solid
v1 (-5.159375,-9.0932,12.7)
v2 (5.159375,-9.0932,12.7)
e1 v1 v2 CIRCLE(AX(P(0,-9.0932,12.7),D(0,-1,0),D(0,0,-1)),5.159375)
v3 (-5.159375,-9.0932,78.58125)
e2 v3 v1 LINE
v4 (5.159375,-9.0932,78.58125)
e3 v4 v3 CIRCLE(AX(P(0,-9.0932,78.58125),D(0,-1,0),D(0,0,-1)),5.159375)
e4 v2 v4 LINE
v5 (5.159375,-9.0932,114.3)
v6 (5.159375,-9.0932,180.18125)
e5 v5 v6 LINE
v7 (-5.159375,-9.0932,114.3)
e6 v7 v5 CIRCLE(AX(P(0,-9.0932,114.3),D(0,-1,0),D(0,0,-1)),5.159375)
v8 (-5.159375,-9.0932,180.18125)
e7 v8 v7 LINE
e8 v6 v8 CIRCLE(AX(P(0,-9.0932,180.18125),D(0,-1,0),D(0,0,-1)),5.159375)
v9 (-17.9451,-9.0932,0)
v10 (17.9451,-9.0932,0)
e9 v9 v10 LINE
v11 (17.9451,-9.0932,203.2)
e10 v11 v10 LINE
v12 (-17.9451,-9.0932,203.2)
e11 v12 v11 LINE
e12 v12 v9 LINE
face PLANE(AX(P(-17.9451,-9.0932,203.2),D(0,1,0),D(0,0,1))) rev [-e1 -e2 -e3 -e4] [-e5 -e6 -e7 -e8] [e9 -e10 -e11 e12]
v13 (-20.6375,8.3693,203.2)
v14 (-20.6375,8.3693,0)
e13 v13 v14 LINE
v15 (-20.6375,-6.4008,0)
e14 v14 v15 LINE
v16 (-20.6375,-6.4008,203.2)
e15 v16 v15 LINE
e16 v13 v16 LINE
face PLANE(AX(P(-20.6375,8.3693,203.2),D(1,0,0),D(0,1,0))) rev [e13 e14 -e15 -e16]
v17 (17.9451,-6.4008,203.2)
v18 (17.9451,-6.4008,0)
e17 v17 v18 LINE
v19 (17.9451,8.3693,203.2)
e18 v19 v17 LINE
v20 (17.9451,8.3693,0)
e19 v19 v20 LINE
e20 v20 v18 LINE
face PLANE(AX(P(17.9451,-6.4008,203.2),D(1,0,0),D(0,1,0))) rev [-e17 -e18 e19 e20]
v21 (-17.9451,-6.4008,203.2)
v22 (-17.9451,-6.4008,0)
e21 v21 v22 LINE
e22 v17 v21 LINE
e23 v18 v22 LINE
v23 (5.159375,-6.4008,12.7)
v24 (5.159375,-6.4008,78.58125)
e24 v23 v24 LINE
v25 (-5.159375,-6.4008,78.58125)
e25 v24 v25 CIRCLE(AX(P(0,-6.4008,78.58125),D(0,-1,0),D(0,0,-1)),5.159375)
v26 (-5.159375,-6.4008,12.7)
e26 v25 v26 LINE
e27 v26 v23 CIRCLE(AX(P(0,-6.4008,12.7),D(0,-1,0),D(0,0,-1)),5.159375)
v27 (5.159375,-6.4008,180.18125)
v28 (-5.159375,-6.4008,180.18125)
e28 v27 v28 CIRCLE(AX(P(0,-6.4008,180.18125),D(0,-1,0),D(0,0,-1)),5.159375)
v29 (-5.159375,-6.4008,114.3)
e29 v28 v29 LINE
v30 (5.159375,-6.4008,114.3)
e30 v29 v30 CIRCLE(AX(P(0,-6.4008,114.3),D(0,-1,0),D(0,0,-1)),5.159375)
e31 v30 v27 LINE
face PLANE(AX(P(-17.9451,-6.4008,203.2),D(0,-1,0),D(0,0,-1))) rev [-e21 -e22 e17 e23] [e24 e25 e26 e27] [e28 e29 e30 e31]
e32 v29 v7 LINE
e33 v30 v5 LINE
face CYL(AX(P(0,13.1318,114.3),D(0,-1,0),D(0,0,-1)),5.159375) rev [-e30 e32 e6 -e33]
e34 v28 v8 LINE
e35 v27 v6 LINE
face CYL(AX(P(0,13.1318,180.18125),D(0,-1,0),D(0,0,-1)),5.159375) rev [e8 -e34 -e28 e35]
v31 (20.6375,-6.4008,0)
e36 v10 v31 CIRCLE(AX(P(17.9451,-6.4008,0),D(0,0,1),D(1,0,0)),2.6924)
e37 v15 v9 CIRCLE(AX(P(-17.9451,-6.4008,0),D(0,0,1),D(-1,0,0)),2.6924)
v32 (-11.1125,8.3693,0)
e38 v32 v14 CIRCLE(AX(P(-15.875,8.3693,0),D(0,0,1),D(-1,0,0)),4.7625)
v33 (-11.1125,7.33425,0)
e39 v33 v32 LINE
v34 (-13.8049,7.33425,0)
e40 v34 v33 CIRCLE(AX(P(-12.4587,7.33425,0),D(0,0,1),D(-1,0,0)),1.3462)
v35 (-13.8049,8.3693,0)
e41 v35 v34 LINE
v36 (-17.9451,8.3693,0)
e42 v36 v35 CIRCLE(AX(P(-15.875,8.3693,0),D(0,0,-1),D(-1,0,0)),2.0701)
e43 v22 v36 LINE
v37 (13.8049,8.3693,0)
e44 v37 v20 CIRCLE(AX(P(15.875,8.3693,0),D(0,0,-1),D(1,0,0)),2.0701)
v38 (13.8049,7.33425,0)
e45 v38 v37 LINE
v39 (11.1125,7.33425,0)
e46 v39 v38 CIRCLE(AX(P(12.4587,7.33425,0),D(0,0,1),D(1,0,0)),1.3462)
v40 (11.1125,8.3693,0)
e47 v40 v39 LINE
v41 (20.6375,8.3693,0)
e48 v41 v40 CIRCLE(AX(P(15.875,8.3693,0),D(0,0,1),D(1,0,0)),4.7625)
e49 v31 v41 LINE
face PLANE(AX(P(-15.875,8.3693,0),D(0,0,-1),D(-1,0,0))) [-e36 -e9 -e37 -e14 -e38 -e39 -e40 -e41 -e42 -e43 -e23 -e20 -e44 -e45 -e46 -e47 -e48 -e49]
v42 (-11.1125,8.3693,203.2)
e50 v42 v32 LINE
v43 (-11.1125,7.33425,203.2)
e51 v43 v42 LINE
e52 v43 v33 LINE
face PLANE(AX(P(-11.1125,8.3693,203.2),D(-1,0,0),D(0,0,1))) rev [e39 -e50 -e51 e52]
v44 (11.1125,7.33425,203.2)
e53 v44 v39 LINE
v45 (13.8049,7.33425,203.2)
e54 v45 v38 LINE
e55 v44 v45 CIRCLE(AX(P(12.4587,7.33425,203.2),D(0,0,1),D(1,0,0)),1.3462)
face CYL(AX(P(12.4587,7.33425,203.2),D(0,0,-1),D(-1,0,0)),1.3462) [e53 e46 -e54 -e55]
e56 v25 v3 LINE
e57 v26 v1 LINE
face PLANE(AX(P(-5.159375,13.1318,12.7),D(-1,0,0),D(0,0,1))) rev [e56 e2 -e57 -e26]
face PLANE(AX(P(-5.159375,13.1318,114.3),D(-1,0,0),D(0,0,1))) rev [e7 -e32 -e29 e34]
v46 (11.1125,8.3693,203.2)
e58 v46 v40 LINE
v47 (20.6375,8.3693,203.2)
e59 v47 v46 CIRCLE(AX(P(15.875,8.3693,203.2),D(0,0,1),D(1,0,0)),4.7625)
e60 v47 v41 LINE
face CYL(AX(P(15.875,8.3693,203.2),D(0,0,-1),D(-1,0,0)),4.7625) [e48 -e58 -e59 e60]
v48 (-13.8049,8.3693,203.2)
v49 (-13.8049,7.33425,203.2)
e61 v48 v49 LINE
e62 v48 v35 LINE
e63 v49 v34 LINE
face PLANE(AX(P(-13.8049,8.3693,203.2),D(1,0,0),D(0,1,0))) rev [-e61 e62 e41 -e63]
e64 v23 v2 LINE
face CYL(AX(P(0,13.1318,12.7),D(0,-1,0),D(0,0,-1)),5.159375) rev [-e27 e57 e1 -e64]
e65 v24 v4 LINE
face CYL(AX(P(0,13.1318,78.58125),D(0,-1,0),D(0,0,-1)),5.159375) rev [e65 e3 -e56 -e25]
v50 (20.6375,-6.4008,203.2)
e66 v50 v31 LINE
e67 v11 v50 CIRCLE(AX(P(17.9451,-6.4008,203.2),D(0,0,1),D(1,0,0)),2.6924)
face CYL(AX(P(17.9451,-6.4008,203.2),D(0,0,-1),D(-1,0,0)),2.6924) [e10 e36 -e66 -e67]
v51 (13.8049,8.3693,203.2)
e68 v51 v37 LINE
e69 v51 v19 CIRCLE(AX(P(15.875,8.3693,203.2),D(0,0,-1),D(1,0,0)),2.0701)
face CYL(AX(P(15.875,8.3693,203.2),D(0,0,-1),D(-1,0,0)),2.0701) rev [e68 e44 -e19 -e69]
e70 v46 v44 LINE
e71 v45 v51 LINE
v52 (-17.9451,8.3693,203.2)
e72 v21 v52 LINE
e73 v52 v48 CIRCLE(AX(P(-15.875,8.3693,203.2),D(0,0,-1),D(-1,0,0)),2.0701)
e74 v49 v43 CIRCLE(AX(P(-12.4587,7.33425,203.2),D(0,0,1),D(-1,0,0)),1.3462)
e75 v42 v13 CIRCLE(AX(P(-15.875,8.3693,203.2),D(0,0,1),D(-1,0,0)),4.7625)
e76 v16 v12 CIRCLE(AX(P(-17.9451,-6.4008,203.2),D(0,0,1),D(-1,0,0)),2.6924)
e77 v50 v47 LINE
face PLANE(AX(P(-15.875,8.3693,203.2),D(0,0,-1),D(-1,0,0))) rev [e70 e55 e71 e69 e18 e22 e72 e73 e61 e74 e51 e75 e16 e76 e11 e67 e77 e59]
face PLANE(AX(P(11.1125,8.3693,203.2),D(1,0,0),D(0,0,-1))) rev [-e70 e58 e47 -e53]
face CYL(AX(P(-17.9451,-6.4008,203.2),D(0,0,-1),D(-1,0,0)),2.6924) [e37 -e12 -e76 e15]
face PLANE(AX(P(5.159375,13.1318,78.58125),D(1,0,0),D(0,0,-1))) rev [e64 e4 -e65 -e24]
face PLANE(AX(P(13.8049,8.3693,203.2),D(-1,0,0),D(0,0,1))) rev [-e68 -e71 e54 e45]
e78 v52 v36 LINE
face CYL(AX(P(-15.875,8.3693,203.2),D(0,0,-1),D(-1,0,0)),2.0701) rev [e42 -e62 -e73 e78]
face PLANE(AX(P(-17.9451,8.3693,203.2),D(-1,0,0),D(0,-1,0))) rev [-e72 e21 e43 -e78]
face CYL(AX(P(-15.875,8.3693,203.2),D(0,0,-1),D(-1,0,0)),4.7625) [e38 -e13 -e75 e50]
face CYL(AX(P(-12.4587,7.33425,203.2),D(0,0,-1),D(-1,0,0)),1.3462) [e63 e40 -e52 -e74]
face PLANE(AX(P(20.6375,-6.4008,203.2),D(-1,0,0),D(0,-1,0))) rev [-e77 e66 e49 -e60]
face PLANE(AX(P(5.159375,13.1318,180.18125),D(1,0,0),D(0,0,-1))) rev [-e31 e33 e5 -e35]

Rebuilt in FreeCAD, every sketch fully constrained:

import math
import FreeCAD as App
import Part
import Sketcher

V = App.Vector
Q = App.Units.Quantity

doc = App.newDocument("Part")
body = doc.addObject("PartDesign::Body", "Body")

sketch1 = doc.addObject("Sketcher::SketchObject", "Sketch")
body.addObject(sketch1)
sketch1.AttachmentSupport = (doc.XY_Plane, [""])
sketch1.MapMode = "FlatFace"
sketch1.addGeometry([
    Part.LineSegment(V(-20.6, 8.4, 0), V(-20.6, -6.4, 0)),
    Part.ArcOfCircle(Part.Circle(V(-17.9, -6.4, 0), V(0, 0, 1), 2.7), math.radians(180), math.radians(270)),
    Part.LineSegment(V(-17.9, -9.1, 0), V(17.9, -9.1, 0)),
    Part.ArcOfCircle(Part.Circle(V(17.9, -6.4, 0), V(0, 0, 1), 2.7), math.radians(-90), math.radians(0)),
    Part.LineSegment(V(20.6, -6.4, 0), V(20.6, 8.4, 0)),
    Part.ArcOfCircle(Part.Circle(V(15.9, 8.4, 0), V(0, 0, 1), 4.8), math.radians(0), math.radians(180)),
    Part.LineSegment(V(11.1, 8.4, 0), V(11.1, 7.3, 0)),
    Part.ArcOfCircle(Part.Circle(V(12.5, 7.3, 0), V(0, 0, 1), 1.3), math.radians(180), math.radians(360)),
    Part.LineSegment(V(13.8, 7.3, 0), V(13.8, 8.4, 0)),
    Part.ArcOfCircle(Part.Circle(V(15.9, 8.4, 0), V(0, 0, 1), 2.1), math.radians(0), math.radians(180)),
    Part.LineSegment(V(17.9, 8.4, 0), V(17.9, -6.4, 0)),
    Part.LineSegment(V(17.9, -6.4, 0), V(-17.9, -6.4, 0)),
    Part.LineSegment(V(-17.9, -6.4, 0), V(-17.9, 8.4, 0)),
    Part.ArcOfCircle(Part.Circle(V(-15.9, 8.4, 0), V(0, 0, 1), 2.1), math.radians(0), math.radians(180)),
    Part.LineSegment(V(-13.8, 8.4, 0), V(-13.8, 7.3, 0)),
    Part.ArcOfCircle(Part.Circle(V(-12.5, 7.3, 0), V(0, 0, 1), 1.3), math.radians(180), math.radians(360)),
    Part.LineSegment(V(-11.1, 7.3, 0), V(-11.1, 8.4, 0)),
    Part.ArcOfCircle(Part.Circle(V(-15.9, 8.4, 0), V(0, 0, 1), 4.8), math.radians(0), math.radians(180)),
], False)
sketch1.addConstraint([
    Sketcher.Constraint("Tangent", 0, 2, 1, 1),
    Sketcher.Constraint("Tangent", 1, 2, 2, 1),
    Sketcher.Constraint("Tangent", 2, 2, 3, 1),
    Sketcher.Constraint("Tangent", 3, 2, 4, 1),
    Sketcher.Constraint("Tangent", 4, 2, 5, 1),
    Sketcher.Constraint("Tangent", 5, 2, 6, 1),
    Sketcher.Constraint("Tangent", 6, 2, 7, 1),
    Sketcher.Constraint("Tangent", 7, 2, 8, 1),
    Sketcher.Constraint("Tangent", 8, 2, 9, 2),
    Sketcher.Constraint("Tangent", 9, 1, 10, 1),
    Sketcher.Constraint("Coincident", 10, 2, 11, 1),
    Sketcher.Constraint("Coincident", 11, 2, 12, 1),
    Sketcher.Constraint("Tangent", 12, 2, 13, 2),
    Sketcher.Constraint("Tangent", 13, 1, 14, 1),
    Sketcher.Constraint("Tangent", 14, 2, 15, 1),
    Sketcher.Constraint("Tangent", 15, 2, 16, 1),
    Sketcher.Constraint("Tangent", 16, 2, 17, 1),
    Sketcher.Constraint("Tangent", 17, 2, 0, 1),
    Sketcher.Constraint("Vertical", 0),
    Sketcher.Constraint("Horizontal", 2),
    Sketcher.Constraint("Vertical", 4),
    Sketcher.Constraint("Vertical", 6),
    Sketcher.Constraint("Vertical", 8),
    Sketcher.Constraint("Vertical", 10),
    Sketcher.Constraint("Horizontal", 11),
    Sketcher.Constraint("Vertical", 12),
    Sketcher.Constraint("Vertical", 14),
    Sketcher.Constraint("Vertical", 16),
    Sketcher.Constraint("Coincident", 9, 3, 5, 3),
    Sketcher.Constraint("Coincident", 17, 3, 13, 3),
    Sketcher.Constraint("Coincident", 10, 2, 3, 3),
    Sketcher.Constraint("Coincident", 11, 2, 1, 3),
    Sketcher.Constraint("Equal", 9, 13),
    Sketcher.Constraint("Symmetric", 5, 3, 13, 3, -2),
    Sketcher.Constraint("Horizontal", 7, 3, 15, 3),
    Sketcher.Constraint("Radius", 1, Q("0.106 in")),
    Sketcher.Constraint("Radius", 5, Q("0.1875 in")),
    Sketcher.Constraint("DistanceX", 2, 1, 2, 2, Q("1.413 in")),
    Sketcher.Constraint("DistanceY", 0, 2, 0, 1, Q("0.5815 in")),
    Sketcher.Constraint("DistanceY", 1, 3, -1, 1, Q("0.252 in")),
    Sketcher.Constraint("DistanceY", 6, 2, 6, 1, 1.03505),
])
pad1 = doc.addObject("PartDesign::Pad", "Pad")
body.addObject(pad1)
pad1.Profile = sketch1
pad1.Length = Q("8 in")

sketch2 = doc.addObject("Sketcher::SketchObject", "Sketch001")
body.addObject(sketch2)
sketch2.AttachmentSupport = (doc.XZ_Plane, [""])
sketch2.MapMode = "FlatFace"
sketch2.AttachmentOffset = App.Placement(V(0, 0, 0.358 * 25.4), App.Rotation())
sketch2.addGeometry([
    Part.LineSegment(V(5, 13, 0), V(5, 79, 0)),
    Part.ArcOfCircle(Part.Circle(V(0, 79, 0), V(0, 0, 1), 5), math.radians(0), math.radians(180)),
    Part.LineSegment(V(-5, 79, 0), V(-5, 13, 0)),
    Part.ArcOfCircle(Part.Circle(V(0, 13, 0), V(0, 0, 1), 5), math.radians(180), math.radians(360)),
], False)
sketch2.addConstraint([
    Sketcher.Constraint("Tangent", 0, 2, 1, 1),
    Sketcher.Constraint("Tangent", 1, 2, 2, 1),
    Sketcher.Constraint("Tangent", 2, 2, 3, 1),
    Sketcher.Constraint("Tangent", 3, 2, 0, 1),
    Sketcher.Constraint("Vertical", 0),
    Sketcher.Constraint("Vertical", 2),
    Sketcher.Constraint("PointOnObject", 1, 3, -2),
    Sketcher.Constraint("Radius", 1, Q("0.203125 in")),
    Sketcher.Constraint("DistanceY", -1, 1, 3, 3, Q("0.5 in")),
    Sketcher.Constraint("DistanceY", 0, 1, 0, 2, Q("2.59375 in")),
])
pocket1 = doc.addObject("PartDesign::Pocket", "Pocket")
body.addObject(pocket1)
pocket1.Profile = sketch2
pocket1.Type = "ThroughAll"
doc.recompute()

linearpattern = doc.addObject("PartDesign::LinearPattern", "LinearPattern")
body.addObject(linearpattern)
linearpattern.Originals = [pocket1]
linearpattern.Direction = (doc.Z_Axis, [""])
linearpattern.Mode = "offset"
linearpattern.Offset = Q("4 in")
linearpattern.Occurrences = 2
body.Tip = linearpattern

doc.recompute()
